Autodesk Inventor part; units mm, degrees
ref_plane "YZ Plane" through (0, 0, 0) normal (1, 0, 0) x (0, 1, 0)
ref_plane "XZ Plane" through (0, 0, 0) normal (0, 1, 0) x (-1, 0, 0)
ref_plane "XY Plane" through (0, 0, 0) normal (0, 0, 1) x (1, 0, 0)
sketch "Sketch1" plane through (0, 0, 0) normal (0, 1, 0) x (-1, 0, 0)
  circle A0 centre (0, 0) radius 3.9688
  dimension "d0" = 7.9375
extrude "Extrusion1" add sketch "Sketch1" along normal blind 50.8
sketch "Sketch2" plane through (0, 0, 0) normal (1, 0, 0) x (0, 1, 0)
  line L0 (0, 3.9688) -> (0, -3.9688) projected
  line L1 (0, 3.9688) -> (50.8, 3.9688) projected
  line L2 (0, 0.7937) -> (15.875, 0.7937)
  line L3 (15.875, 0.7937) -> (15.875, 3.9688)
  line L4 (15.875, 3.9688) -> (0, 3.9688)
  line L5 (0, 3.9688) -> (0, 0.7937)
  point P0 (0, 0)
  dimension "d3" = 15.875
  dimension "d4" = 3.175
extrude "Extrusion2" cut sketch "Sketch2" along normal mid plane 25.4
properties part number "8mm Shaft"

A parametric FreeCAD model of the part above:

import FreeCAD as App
import Part
import Sketcher
Q = App.Units.Quantity

doc = App.newDocument("Part")
body = doc.addObject("PartDesign::Body", "Body")

sketch1 = body.newObject("Sketcher::SketchObject", "Sketch")
sketch1.AttachmentSupport = (doc.getObject("XZ_Plane"), [""])
sketch1.MapMode = "FlatFace"
sketch1.addGeometry(Part.Circle(App.Vector(0, 0, 0), App.Vector(0, 0, 1), 3.9688), False)
sketch1.addConstraint([
    Sketcher.Constraint("Coincident", 0, 3, -1, 1),
    Sketcher.Constraint("Diameter", 0, Q("0.3125 in")),
])
pad1 = body.newObject("PartDesign::Pad", "Pad")
pad1.Profile = sketch1
pad1.Length = Q("2 in")
pad1.Reversed = True

sketch2 = body.newObject("Sketcher::SketchObject", "Sketch001")
sketch2.AttachmentSupport = (doc.getObject("YZ_Plane"), [""])
sketch2.MapMode = "FlatFace"
sketch2.addGeometry([
    Part.LineSegment(App.Vector(15.875, 3.9688, 0), App.Vector(0, 3.9688, 0)),
    Part.LineSegment(App.Vector(0, 3.9688, 0), App.Vector(0, 0.7937, 0)),
    Part.LineSegment(App.Vector(0, 0.7937, 0), App.Vector(15.875, 0.7937, 0)),
    Part.LineSegment(App.Vector(15.875, 0.7937, 0), App.Vector(15.875, 3.9688, 0)),
], False)
sketch2.addConstraint([
    Sketcher.Constraint("Coincident", 0, 2, 1, 1),
    Sketcher.Constraint("Coincident", 1, 2, 2, 1),
    Sketcher.Constraint("Coincident", 2, 2, 3, 1),
    Sketcher.Constraint("Coincident", 3, 2, 0, 1),
    Sketcher.Constraint("Horizontal", 0),
    Sketcher.Constraint("Vertical", 1),
    Sketcher.Constraint("Horizontal", 2),
    Sketcher.Constraint("Vertical", 3),
    Sketcher.Constraint("PointOnObject", 0, 2, -2),
    Sketcher.Constraint("DistanceX", 0, 2, 0, 1, Q("0.625 in")),
    Sketcher.Constraint("DistanceY", 1, 2, 1, 1, Q("0.125 in")),
    Sketcher.Constraint("DistanceY", -1, 1, 0, 2, Q("0.156252 in")),
])
pocket1 = body.newObject("PartDesign::Pocket", "Pocket")
pocket1.Profile = sketch2
pocket1.Length = Q("1 in")
pocket1.Midplane = True

doc.recompute()
